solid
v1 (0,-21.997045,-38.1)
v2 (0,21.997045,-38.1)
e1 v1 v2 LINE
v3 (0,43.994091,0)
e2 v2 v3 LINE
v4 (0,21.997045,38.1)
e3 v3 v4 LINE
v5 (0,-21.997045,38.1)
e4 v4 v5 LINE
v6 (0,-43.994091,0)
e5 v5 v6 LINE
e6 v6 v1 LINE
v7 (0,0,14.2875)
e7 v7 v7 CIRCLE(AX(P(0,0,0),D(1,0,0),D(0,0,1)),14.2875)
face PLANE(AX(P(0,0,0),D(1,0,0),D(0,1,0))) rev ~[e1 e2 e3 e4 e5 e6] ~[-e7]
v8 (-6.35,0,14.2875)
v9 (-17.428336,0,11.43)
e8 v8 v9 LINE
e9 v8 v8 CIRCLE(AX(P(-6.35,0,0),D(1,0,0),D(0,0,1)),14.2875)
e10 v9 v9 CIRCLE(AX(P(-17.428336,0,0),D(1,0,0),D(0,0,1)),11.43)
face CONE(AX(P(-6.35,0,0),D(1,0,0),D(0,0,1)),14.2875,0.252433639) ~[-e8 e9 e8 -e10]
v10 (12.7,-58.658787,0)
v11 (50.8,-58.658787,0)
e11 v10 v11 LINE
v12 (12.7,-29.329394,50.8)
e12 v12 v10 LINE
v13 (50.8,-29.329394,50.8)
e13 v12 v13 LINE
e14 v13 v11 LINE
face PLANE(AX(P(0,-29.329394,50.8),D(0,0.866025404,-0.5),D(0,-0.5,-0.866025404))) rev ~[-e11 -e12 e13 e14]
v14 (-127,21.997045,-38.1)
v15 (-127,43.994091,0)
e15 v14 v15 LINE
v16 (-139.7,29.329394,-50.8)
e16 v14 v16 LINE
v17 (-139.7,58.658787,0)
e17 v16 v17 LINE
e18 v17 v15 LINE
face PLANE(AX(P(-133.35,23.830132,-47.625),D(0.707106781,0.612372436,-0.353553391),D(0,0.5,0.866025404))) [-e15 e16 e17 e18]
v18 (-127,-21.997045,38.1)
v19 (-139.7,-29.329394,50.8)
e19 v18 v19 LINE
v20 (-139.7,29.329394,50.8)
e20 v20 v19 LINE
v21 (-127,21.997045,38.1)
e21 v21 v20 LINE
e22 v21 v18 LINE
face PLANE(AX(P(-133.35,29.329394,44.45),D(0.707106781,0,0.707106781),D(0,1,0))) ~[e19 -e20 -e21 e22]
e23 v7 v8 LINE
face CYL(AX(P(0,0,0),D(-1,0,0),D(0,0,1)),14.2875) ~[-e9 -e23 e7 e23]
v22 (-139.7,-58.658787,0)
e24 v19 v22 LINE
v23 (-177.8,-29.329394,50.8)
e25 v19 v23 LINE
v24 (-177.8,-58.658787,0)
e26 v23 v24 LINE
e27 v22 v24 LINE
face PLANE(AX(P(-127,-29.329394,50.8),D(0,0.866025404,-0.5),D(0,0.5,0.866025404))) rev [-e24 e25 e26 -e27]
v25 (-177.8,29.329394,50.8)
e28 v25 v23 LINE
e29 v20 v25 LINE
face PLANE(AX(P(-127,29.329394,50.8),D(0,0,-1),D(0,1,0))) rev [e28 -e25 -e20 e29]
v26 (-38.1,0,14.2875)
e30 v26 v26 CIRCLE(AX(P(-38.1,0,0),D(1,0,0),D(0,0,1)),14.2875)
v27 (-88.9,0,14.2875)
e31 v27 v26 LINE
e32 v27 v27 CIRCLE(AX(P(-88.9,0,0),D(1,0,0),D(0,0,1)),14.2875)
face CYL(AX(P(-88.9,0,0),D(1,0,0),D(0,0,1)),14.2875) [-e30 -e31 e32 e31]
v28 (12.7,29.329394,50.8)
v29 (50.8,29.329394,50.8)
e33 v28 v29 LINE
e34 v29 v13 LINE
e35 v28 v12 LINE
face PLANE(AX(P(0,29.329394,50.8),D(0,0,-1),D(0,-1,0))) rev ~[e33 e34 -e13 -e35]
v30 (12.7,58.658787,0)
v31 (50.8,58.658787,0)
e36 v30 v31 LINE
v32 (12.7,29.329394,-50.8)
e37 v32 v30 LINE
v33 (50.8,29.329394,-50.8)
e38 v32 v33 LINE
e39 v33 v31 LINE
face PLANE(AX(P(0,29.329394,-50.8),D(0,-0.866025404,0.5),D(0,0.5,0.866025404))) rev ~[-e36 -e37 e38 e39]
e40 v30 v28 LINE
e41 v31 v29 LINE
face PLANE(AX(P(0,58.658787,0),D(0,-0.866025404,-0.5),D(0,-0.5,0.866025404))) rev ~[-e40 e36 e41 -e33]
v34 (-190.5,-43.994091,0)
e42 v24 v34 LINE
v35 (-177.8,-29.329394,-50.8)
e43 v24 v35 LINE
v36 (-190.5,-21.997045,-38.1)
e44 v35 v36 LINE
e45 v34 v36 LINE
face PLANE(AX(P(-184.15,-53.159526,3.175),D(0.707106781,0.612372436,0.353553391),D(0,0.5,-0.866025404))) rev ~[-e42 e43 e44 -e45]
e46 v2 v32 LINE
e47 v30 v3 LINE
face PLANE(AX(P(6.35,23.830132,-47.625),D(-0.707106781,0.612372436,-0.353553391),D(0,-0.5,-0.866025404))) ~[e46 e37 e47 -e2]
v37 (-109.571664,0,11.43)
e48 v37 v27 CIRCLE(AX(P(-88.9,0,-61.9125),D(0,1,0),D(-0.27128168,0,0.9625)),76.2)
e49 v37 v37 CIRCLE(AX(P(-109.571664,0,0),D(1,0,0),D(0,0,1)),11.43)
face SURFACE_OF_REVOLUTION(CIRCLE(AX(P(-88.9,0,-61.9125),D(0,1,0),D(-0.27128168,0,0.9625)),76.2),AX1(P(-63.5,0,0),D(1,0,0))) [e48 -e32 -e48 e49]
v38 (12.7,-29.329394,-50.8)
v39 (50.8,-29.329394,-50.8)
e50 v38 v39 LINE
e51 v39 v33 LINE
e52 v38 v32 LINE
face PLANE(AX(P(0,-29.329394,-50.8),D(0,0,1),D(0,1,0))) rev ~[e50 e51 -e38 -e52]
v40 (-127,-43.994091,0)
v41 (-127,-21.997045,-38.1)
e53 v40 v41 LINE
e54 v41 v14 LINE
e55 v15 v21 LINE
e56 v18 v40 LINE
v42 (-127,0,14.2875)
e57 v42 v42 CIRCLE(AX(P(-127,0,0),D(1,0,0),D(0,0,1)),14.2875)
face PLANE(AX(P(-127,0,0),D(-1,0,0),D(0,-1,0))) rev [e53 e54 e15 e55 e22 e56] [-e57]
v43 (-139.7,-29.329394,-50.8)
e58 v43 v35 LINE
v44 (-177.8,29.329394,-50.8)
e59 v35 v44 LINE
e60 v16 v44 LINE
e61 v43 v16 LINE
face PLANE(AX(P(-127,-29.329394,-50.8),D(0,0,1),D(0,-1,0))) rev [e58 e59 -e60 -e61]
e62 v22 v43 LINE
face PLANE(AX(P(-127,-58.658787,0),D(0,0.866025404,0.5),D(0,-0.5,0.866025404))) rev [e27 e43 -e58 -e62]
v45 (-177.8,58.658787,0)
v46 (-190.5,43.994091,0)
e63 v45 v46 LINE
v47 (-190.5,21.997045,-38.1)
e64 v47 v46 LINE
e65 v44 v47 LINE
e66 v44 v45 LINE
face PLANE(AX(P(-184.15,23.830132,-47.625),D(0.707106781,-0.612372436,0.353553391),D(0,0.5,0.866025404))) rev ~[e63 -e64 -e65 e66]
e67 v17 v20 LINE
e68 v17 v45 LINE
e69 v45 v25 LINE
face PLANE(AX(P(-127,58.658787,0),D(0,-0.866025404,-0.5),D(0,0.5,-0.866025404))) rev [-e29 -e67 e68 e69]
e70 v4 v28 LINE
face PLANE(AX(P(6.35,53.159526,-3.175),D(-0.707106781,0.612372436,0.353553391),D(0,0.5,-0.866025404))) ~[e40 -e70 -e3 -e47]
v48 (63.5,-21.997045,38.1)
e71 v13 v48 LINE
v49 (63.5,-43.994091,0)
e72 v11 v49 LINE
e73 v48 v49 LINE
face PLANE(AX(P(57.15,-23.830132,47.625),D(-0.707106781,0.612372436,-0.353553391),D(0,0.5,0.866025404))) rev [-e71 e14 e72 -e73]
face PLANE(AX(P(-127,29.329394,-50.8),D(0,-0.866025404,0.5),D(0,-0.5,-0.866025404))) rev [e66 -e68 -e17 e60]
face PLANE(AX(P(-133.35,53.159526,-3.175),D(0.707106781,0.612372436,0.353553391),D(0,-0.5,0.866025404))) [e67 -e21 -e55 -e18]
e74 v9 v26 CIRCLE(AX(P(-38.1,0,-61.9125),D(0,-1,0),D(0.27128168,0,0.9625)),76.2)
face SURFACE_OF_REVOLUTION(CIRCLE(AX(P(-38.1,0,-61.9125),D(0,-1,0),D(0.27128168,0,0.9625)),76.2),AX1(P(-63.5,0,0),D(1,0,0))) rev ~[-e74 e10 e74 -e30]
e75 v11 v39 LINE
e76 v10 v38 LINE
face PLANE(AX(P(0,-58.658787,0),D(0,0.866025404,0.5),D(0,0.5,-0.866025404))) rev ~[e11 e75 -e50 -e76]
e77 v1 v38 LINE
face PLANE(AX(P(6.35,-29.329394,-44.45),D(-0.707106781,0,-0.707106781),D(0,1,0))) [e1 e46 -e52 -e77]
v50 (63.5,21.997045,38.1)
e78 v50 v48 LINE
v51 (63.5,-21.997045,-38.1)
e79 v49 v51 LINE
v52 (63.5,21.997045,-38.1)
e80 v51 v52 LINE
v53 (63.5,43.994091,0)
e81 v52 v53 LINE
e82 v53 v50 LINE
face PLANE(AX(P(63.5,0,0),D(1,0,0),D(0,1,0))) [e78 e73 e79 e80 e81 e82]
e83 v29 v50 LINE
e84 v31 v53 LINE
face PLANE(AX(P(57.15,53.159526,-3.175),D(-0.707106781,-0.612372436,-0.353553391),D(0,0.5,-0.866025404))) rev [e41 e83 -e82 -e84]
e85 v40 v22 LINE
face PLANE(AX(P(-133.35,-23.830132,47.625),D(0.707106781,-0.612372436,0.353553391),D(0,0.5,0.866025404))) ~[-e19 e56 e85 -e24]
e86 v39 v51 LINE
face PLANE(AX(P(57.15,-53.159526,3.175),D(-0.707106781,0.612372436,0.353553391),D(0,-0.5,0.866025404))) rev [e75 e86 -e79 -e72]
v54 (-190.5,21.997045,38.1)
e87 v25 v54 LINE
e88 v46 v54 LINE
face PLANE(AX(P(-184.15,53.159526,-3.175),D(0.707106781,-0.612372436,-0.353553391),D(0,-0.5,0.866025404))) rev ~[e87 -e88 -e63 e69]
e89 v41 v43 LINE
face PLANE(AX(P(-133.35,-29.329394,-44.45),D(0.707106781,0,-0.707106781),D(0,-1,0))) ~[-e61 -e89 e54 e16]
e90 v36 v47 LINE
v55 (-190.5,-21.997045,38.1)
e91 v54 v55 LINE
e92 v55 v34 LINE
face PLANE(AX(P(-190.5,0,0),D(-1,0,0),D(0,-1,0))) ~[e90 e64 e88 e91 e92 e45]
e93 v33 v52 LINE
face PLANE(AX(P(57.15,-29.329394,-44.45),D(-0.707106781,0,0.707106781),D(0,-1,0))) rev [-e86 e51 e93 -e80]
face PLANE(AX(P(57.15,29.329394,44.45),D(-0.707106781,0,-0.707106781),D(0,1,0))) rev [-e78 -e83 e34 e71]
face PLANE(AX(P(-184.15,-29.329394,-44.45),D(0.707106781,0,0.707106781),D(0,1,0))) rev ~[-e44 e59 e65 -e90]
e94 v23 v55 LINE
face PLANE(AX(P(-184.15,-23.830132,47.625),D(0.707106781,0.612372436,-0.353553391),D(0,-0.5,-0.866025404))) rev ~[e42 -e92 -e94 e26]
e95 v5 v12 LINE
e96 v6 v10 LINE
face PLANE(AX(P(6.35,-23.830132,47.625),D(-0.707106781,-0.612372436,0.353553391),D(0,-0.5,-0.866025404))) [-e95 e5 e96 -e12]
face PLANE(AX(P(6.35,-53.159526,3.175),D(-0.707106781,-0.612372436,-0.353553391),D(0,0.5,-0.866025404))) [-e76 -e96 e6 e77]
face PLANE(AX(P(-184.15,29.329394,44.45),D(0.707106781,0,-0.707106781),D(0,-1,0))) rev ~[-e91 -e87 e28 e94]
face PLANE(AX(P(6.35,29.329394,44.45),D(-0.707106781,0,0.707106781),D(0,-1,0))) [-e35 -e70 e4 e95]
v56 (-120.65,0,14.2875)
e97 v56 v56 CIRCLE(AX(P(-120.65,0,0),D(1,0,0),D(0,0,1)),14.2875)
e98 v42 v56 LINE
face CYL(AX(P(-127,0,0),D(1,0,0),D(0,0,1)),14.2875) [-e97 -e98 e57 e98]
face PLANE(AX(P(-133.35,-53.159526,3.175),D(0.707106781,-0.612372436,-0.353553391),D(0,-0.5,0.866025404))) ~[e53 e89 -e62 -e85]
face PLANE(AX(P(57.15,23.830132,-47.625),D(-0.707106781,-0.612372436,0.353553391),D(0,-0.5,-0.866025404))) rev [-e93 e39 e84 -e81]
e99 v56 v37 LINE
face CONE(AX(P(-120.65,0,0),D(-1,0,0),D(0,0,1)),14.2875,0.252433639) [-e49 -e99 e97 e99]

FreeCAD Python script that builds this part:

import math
import FreeCAD as App
import Part
import Sketcher
Q = App.Units.Quantity


def edges_at(feature, points):
    """Names of the edges that pass closest to the given points."""
    edges = feature.Shape.Edges
    near = lambda p: min(range(len(edges)), key=lambda i: edges[i].distToShape(Part.Vertex(*p))[0])
    return sorted({f"Edge{near(p) + 1}" for p in points})


def add_polygon(sketch, points):
    """Adds a closed chain of lines whose ends are joined by coincident constraints."""
    first, n = sketch.GeometryCount, len(points)
    for a, b in zip(points, points[1:] + points[:1]):
        sketch.addGeometry(Part.LineSegment(App.Vector(*a, 0), App.Vector(*b, 0)), False)
    for i in range(n):
        sketch.addConstraint(Sketcher.Constraint("Coincident", first + i, 2, first + (i + 1) % n, 1))

doc = App.newDocument("Part")
body = doc.addObject("PartDesign::Body", "Body")

# Sketch on YZ plane
sketch1 = body.newObject("Sketcher::SketchObject", "Sketch")
sketch1.AttachmentSupport = (doc.getObject("YZ_Plane"), [""])
sketch1.MapMode = "FlatFace"
add_polygon(sketch1, [(59, 0), (29, 51), (-29, 51), (-59, 0), (-29, -51), (29, -51)])  # lines 0-5
sketch1.addConstraint([
    Sketcher.Constraint("Horizontal", 1),
    Sketcher.Constraint("Horizontal", 4),
    Sketcher.Constraint("Symmetric", 0, 2, 3, 2, -1, 1),
    Sketcher.Constraint("Symmetric", 2, 2, 5, 2, -1, 1),
    Sketcher.Constraint("PointOnObject", 2, 2, -1),
    Sketcher.Constraint("Parallel", 2, 5),
    Sketcher.Constraint("Vertical", 1, 2, 3, 2),
    Sketcher.Constraint("DistanceY", -1, 1, 0, 2, Q("2 in")),
    Sketcher.Constraint("Angle", 0, Q("120 deg")),
    Sketcher.Constraint("DistanceX", 1, 2, 1, 1, Q("58.658787 mm")),
])
pad1 = body.newObject("PartDesign::Pad", "Pad")
pad1.Profile = sketch1
pad1.Length = Q("2.5 in")
doc.recompute()

chamfer = body.newObject("PartDesign::Chamfer", "Chamfer")
chamfer.Base = (pad1, edges_at(pad1, [
    (63.5, 0, 50.8),
    (63.5, -43.994, 25.4),
    (63.5, -43.994, -25.4),
    (63.5, 0, -50.8),
    (63.5, 43.994, -25.4),
    (63.5, 43.994, 25.4),
]))
chamfer.Size = Q("0.5 in")
doc.recompute()

chamfer2 = body.newObject("PartDesign::Chamfer", "Chamfer001")
chamfer2.Base = (chamfer, edges_at(chamfer, [
    (0, 0, -50.8),
    (0, -43.994, -25.4),
    (0, -43.994, 25.4),
    (0, 0, 50.8),
    (0, 43.994, 25.4),
    (0, 43.994, -25.4),
]))
chamfer2.Size = Q("0.5 in")

# Sketch on XZ plane
sketch2 = body.newObject("Sketcher::SketchObject", "Sketch001")
sketch2.AttachmentSupport = (doc.getObject("XZ_Plane"), [""])
sketch2.MapMode = "FlatFace"
sketch2.addGeometry([
    Part.LineSegment(App.Vector(0, 14, 0), App.Vector(0, 0, 0)),  # 0
    Part.LineSegment(App.Vector(0, 0, 0), App.Vector(-64, 0, 0)),  # 1
    Part.LineSegment(App.Vector(-64, 0, 0), App.Vector(-64, 14, 0)),  # 2
    Part.LineSegment(App.Vector(-64, 14, 0), App.Vector(-38, 14, 0)),  # 3
    Part.ArcOfCircle(Part.Circle(App.Vector(-38, -62, 0), App.Vector(0, 0, 1), 76), math.radians(74.26), math.radians(90)),  # 4
    Part.LineSegment(App.Vector(-17, 11, 0), App.Vector(-6, 14, 0)),  # 5
    Part.LineSegment(App.Vector(-6, 14, 0), App.Vector(0, 14, 0)),  # 6
], False)
sketch2.addConstraint([
    Sketcher.Constraint("Coincident", 0, 2, 1, 1),
    Sketcher.Constraint("Coincident", 1, 2, 2, 1),
    Sketcher.Constraint("Coincident", 2, 2, 3, 1),
    Sketcher.Constraint("Tangent", 3, 2, 4, 2),
    Sketcher.Constraint("Coincident", 4, 1, 5, 1),
    Sketcher.Constraint("Coincident", 5, 2, 6, 1),
    Sketcher.Constraint("Coincident", 6, 2, 0, 1),
    Sketcher.Constraint("Vertical", 0),
    Sketcher.Constraint("Horizontal", 1),
    Sketcher.Constraint("Vertical", 2),
    Sketcher.Constraint("Horizontal", 3),
    Sketcher.Constraint("Horizontal", 6),
    Sketcher.Constraint("Coincident", 0, 2, -1, 1),
    Sketcher.Constraint("Horizontal", 3, 2, 5, 2),
    Sketcher.Constraint("Radius", 4, Q("3 in")),
    Sketcher.Constraint("DistanceX", 3, 1, 3, 2, Q("1 in")),
    Sketcher.Constraint("DistanceX", 1, 2, 1, 1, Q("2.5 in")),
    Sketcher.Constraint("DistanceX", 6, 1, 6, 2, Q("0.25 in")),
    Sketcher.Constraint("DistanceY", 0, 2, 0, 1, Q("0.5625 in")),
    Sketcher.Constraint("DistanceY", -1, 1, 4, 1, Q("0.45 in")),
])
revolution = body.newObject("PartDesign::Revolution", "Revolution")
revolution.Profile = sketch2
revolution.ReferenceAxis = (sketch2, ["H_Axis"])
revolution.Angle = 360
body2 = doc.addObject("PartDesign::Body", "Body001")
doc.recompute()

body2.BaseFeature = body
doc.recompute()

mirroring = doc.addObject("Part::Mirroring", "Mirroring")
mirroring.Source = body
mirroring.Base = App.Vector(-63.5, 0, 14.2875)
mirroring.Normal = App.Vector(-1, 0, 0)
body3 = doc.addObject("PartDesign::Body", "Body002")
body3.BaseFeature = mirroring
boolean = body2.newObject("PartDesign::Boolean", "Boolean")
boolean.Type = "Fuse"
boolean.addObjects([body3])
doc.recompute()
mirroring.Visibility = False

doc.recompute()
